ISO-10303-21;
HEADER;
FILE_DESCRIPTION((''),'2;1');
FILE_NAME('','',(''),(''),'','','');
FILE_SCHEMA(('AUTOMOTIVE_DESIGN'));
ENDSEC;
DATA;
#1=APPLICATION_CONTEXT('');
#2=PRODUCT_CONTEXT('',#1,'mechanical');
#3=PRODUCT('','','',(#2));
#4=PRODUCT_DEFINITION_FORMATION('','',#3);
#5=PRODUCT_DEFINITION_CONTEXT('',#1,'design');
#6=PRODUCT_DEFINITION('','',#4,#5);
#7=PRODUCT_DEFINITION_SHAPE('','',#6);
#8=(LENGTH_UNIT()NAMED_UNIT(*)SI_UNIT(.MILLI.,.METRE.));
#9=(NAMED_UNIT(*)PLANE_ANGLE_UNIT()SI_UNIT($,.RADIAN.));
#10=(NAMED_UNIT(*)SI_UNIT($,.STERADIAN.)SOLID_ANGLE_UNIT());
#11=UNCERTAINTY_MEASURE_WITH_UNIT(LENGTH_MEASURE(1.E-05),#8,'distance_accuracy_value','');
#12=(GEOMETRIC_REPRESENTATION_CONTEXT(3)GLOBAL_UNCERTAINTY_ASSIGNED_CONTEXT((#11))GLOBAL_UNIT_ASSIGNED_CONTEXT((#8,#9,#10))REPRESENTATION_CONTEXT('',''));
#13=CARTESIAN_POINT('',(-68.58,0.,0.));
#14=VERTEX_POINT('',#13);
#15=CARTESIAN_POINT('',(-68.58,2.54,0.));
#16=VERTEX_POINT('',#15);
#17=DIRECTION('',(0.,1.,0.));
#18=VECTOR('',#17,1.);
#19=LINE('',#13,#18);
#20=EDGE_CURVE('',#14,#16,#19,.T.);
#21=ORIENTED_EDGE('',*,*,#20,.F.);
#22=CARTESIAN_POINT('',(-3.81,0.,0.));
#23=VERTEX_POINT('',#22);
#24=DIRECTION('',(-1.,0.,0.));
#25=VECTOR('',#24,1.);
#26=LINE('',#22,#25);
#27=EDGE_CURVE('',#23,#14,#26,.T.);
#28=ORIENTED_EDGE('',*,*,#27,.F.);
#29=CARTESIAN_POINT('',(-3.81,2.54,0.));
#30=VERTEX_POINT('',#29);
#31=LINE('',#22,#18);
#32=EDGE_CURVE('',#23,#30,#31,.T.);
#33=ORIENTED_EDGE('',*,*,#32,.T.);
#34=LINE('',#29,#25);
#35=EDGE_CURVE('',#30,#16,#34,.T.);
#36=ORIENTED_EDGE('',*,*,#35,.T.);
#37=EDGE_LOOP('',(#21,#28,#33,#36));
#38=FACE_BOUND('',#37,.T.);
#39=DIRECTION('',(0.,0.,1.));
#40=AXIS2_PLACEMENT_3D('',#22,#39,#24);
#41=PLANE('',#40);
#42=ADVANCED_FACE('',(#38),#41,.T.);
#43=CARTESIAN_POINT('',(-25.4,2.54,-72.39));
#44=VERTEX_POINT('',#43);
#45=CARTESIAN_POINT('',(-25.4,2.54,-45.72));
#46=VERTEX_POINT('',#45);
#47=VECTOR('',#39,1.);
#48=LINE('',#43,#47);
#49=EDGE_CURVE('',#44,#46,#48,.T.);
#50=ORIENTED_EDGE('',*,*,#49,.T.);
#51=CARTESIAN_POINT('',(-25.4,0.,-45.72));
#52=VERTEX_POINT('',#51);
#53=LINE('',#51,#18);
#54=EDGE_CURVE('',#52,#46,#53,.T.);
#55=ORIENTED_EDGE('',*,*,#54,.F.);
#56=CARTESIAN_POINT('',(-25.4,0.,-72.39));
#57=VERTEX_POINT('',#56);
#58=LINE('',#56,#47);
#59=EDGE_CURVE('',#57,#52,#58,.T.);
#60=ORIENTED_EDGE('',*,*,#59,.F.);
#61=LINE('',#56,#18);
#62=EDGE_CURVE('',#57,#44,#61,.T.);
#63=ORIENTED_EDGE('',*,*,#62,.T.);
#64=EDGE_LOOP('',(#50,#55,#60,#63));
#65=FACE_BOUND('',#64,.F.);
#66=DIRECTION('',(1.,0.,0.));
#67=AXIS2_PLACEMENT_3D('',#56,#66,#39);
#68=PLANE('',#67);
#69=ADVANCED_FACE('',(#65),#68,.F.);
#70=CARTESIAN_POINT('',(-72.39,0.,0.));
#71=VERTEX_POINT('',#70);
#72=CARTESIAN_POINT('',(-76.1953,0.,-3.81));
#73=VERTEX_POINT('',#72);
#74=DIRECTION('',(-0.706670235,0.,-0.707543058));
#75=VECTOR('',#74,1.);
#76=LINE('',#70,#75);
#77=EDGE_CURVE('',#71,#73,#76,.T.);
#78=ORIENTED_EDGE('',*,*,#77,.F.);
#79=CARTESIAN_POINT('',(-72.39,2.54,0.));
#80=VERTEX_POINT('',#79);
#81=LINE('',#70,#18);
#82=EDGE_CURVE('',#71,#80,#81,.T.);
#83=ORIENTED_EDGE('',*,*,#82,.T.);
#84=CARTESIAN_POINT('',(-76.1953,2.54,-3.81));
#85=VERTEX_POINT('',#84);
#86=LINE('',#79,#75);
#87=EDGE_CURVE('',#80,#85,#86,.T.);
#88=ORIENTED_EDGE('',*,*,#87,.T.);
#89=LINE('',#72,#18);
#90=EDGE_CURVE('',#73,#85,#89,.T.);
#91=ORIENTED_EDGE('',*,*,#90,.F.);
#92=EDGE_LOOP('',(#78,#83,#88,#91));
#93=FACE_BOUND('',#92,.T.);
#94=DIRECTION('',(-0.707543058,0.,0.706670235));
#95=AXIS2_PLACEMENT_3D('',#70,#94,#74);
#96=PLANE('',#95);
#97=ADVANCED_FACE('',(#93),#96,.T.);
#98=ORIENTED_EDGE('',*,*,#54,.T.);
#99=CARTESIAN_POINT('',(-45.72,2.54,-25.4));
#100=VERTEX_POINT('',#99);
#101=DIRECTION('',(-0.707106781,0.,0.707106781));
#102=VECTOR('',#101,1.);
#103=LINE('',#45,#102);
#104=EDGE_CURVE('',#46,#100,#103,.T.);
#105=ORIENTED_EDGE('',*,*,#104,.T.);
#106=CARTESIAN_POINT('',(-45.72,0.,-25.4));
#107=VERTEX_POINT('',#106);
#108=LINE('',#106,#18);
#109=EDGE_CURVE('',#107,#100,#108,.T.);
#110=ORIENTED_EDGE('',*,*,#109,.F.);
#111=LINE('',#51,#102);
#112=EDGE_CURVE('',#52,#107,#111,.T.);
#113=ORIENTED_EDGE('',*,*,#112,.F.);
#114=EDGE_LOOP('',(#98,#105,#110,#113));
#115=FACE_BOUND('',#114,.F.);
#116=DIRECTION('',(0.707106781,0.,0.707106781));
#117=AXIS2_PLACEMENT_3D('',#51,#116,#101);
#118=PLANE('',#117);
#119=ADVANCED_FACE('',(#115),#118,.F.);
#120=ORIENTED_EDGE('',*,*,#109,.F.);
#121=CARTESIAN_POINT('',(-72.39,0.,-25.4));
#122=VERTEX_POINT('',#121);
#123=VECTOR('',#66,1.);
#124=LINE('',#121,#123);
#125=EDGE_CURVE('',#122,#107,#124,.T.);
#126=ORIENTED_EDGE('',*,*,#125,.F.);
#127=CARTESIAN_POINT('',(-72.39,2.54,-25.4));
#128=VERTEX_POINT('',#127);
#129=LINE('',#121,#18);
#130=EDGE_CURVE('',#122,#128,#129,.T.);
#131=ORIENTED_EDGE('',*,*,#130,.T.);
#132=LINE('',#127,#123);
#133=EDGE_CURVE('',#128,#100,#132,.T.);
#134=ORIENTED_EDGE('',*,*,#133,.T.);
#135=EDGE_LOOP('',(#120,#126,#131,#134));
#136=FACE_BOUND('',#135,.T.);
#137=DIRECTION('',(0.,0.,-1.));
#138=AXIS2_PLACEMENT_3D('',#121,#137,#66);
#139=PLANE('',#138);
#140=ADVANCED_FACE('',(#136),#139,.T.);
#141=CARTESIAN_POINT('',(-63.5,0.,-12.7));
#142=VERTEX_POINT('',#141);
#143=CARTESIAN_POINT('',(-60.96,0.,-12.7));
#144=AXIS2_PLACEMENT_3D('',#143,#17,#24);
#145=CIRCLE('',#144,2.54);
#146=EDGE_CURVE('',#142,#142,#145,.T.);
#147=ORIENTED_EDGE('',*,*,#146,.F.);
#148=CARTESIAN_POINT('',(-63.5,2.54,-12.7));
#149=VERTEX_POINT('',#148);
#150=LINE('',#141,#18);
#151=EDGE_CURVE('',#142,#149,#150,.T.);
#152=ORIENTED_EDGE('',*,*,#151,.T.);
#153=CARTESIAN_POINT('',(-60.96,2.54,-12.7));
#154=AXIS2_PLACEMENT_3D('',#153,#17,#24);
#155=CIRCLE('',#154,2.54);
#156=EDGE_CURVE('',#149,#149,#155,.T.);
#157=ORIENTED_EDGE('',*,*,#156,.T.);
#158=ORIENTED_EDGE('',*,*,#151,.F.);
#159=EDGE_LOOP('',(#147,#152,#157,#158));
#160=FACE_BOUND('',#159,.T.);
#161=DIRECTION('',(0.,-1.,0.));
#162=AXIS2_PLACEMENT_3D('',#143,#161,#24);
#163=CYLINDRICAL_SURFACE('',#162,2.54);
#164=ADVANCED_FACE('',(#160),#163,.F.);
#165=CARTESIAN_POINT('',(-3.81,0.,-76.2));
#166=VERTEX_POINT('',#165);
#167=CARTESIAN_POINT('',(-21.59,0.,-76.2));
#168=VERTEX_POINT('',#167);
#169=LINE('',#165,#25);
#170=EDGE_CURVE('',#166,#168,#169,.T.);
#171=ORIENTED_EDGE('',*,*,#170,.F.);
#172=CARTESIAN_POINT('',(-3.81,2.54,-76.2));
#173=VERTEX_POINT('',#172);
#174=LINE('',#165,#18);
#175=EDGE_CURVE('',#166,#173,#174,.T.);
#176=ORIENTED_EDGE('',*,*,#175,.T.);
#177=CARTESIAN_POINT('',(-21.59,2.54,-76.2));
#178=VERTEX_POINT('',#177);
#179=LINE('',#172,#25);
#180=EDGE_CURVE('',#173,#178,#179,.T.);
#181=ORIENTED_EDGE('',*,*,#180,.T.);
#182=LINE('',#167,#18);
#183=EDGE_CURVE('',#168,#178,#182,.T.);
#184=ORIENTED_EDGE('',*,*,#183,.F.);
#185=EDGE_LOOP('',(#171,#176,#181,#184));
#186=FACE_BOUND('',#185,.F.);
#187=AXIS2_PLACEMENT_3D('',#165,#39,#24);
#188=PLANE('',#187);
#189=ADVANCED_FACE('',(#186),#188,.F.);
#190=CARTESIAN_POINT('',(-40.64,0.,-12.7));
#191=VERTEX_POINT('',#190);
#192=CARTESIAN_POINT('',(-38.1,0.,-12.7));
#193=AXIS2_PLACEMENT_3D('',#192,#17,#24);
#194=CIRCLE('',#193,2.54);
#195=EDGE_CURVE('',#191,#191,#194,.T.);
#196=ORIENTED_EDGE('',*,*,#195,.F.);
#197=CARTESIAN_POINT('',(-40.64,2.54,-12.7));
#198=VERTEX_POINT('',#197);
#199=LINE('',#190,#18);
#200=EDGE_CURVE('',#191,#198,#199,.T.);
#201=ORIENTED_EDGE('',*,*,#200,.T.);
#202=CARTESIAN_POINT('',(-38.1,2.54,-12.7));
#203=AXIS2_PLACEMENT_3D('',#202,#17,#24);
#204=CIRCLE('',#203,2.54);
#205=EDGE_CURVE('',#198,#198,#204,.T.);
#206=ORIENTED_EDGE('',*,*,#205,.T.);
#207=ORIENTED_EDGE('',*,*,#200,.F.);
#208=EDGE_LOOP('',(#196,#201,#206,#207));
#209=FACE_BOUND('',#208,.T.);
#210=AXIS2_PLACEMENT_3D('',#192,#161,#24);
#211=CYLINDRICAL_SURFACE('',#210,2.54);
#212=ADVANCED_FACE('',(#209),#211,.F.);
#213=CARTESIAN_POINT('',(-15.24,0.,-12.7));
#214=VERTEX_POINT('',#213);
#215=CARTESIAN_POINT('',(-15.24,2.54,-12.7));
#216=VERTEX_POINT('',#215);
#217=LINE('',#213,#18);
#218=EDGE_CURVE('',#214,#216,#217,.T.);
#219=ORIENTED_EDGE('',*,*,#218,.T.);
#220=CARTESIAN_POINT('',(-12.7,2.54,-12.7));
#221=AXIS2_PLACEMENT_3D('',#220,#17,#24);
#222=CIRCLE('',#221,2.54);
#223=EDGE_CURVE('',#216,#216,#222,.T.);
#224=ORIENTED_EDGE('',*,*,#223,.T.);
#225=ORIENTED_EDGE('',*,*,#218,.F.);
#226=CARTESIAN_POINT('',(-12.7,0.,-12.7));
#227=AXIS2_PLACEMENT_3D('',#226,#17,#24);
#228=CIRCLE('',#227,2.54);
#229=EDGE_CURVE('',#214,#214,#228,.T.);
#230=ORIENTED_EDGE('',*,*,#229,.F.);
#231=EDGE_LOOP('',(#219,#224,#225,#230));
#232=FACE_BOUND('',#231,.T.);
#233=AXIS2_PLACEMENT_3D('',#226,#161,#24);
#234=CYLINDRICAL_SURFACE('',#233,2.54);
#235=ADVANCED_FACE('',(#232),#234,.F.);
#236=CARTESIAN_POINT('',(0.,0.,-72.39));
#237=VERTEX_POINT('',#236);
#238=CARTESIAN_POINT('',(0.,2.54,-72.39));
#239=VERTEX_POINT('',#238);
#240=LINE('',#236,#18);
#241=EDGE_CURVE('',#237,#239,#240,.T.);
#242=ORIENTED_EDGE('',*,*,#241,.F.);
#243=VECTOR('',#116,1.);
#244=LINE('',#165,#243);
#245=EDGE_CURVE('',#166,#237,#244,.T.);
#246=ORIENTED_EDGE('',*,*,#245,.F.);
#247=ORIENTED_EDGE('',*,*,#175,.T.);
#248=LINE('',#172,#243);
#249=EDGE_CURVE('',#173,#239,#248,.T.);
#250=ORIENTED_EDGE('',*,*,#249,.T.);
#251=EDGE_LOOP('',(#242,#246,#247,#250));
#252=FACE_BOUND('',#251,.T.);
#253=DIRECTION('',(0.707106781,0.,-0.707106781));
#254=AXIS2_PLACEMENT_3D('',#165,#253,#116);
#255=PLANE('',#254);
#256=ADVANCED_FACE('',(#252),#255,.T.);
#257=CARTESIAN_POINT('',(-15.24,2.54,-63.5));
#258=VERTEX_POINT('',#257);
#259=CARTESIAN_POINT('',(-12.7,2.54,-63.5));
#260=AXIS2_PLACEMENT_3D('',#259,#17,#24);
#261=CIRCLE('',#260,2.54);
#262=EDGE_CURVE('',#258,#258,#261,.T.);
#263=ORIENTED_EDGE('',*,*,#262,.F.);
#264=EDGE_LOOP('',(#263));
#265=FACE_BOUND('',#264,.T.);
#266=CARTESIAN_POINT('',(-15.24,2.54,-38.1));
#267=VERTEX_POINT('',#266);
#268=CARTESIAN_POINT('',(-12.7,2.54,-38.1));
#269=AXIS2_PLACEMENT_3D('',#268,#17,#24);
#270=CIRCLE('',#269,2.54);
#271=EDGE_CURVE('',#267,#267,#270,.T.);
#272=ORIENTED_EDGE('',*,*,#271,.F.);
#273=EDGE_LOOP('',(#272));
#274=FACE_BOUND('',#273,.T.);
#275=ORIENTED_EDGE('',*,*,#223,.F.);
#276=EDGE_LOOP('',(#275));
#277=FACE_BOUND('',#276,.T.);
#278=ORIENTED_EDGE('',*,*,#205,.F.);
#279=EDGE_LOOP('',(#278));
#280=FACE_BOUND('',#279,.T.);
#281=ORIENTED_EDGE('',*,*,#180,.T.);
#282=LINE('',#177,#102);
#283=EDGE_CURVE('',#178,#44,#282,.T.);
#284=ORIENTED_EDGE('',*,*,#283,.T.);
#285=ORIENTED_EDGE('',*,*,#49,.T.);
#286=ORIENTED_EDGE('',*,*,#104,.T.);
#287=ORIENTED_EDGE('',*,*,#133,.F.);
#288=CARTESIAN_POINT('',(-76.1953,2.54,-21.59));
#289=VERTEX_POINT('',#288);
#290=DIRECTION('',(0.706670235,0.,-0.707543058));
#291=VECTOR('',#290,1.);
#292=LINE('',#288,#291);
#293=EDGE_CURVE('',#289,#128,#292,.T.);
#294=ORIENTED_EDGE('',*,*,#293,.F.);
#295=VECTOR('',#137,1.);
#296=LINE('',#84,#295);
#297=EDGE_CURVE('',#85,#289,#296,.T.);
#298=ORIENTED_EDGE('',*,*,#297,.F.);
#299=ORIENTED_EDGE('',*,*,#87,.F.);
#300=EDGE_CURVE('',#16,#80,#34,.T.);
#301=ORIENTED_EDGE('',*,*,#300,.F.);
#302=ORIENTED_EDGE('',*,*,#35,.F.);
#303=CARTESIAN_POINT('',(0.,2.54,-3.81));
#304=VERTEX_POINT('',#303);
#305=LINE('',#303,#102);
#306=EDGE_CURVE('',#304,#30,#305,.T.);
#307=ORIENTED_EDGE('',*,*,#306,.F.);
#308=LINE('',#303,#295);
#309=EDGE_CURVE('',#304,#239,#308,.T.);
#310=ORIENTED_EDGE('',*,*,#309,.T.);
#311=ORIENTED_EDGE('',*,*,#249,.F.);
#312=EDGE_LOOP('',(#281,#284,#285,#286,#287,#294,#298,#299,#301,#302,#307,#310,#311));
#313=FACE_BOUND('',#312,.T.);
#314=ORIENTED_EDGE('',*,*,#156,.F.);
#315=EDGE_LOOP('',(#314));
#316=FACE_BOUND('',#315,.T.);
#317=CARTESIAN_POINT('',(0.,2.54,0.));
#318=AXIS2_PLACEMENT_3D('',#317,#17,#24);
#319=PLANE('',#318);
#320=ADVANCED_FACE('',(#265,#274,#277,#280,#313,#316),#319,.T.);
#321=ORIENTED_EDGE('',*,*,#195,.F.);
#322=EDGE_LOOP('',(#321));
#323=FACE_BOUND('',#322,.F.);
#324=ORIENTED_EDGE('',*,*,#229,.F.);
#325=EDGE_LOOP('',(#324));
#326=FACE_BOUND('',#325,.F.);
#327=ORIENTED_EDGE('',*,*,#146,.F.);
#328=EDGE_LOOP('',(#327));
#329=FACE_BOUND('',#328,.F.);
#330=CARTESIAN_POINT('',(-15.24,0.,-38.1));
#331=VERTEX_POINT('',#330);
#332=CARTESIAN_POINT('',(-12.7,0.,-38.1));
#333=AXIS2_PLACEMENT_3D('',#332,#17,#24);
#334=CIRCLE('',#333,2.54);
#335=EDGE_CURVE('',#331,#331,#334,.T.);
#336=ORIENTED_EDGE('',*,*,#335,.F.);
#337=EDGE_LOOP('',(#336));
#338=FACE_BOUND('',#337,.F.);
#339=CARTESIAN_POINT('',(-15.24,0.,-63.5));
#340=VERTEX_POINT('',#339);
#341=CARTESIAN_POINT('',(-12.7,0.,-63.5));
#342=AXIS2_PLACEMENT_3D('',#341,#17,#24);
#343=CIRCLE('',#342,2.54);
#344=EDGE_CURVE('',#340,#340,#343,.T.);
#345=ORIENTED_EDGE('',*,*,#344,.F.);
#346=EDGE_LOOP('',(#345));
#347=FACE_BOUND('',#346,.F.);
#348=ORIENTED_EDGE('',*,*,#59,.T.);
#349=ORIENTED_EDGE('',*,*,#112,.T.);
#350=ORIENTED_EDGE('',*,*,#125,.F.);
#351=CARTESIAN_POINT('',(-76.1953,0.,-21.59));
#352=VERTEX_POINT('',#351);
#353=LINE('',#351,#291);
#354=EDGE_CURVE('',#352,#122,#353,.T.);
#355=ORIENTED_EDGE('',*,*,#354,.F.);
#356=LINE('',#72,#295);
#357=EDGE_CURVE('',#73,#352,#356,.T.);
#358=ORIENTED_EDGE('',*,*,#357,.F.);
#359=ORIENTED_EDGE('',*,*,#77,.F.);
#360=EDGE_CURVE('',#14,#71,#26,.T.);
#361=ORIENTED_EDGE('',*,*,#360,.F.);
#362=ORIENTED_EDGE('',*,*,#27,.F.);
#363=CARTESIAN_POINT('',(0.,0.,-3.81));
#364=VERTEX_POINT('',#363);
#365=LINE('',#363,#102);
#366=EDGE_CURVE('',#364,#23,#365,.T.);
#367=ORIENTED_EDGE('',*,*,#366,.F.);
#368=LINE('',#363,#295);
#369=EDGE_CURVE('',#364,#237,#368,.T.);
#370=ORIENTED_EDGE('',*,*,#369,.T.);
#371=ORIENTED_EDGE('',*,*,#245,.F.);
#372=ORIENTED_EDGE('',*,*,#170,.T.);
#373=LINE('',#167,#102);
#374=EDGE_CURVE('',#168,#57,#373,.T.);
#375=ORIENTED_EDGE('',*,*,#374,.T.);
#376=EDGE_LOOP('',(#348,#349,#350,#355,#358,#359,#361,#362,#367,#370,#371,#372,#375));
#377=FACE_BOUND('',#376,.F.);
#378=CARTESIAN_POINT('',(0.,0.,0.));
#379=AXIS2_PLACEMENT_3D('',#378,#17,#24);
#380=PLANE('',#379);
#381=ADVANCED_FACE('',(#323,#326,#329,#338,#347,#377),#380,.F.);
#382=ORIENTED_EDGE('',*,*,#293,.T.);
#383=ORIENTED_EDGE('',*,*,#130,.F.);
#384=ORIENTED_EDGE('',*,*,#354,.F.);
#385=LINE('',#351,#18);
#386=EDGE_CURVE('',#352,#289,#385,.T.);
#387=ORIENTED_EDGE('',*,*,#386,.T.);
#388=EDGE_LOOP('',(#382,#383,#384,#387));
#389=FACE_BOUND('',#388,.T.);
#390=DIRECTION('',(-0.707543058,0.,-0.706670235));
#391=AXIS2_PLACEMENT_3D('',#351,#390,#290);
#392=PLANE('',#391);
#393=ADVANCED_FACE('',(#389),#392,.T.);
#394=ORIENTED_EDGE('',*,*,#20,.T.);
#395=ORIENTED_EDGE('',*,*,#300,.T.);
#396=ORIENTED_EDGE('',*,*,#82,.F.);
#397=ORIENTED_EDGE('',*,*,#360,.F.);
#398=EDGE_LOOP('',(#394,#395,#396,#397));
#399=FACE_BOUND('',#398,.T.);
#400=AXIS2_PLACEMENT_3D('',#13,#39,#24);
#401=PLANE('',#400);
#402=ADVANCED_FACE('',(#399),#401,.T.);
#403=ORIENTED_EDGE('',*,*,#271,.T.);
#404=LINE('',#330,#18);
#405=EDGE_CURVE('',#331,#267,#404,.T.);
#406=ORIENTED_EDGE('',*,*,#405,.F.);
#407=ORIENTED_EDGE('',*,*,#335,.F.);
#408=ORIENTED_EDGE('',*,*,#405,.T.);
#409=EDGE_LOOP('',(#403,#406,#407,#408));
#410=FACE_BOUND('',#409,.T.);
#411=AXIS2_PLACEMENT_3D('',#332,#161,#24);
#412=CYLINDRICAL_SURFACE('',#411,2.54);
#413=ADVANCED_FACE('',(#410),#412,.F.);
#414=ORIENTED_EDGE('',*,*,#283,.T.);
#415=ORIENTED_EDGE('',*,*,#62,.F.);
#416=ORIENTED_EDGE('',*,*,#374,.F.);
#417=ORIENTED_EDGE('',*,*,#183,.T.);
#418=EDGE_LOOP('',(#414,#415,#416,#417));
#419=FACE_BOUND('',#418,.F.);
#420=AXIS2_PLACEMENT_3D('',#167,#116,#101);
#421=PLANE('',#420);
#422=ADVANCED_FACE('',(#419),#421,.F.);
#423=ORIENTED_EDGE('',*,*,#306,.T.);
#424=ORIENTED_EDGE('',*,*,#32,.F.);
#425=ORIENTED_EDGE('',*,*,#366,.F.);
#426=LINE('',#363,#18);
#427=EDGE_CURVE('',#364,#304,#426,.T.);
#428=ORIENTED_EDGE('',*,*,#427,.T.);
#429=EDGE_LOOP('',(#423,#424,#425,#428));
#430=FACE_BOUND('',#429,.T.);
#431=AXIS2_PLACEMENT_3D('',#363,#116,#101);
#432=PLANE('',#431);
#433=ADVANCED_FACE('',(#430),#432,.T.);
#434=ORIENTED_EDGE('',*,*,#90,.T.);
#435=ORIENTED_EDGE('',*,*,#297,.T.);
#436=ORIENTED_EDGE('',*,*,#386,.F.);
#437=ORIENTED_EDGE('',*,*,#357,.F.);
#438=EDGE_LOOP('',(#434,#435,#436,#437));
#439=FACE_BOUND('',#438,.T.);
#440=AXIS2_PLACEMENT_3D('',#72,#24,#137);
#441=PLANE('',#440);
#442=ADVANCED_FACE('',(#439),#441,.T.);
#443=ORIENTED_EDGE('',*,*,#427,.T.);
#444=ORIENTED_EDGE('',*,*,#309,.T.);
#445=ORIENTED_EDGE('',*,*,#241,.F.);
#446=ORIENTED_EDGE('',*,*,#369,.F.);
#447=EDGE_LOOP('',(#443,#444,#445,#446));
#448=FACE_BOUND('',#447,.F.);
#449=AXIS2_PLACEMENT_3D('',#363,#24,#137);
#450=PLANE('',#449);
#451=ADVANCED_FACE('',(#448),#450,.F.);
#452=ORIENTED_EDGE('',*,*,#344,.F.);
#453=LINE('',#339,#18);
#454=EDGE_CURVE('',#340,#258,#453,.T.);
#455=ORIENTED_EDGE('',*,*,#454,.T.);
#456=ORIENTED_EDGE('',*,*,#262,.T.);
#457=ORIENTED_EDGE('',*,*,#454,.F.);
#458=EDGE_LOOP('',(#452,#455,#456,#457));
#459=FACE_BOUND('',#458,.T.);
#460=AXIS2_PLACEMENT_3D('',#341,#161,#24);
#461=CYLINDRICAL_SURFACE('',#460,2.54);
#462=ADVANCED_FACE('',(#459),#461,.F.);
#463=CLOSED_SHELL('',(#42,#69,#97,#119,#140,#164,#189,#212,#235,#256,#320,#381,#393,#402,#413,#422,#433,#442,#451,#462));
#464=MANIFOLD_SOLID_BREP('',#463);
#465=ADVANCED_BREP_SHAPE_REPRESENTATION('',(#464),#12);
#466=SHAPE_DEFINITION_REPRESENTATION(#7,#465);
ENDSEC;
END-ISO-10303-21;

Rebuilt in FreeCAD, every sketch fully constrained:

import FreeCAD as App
import Part
import Sketcher

V = App.Vector
Q = App.Units.Quantity


def add_polygon(sketch, points):
    """Adds a closed chain of lines whose ends are joined by coincident constraints."""
    first, n = sketch.GeometryCount, len(points)
    for a, b in zip(points, points[1:] + points[:1]):
        sketch.addGeometry(Part.LineSegment(App.Vector(*a, 0), App.Vector(*b, 0)), False)
    for i in range(n):
        sketch.addConstraint(Sketcher.Constraint("Coincident", first + i, 2, first + (i + 1) % n, 1))

doc = App.newDocument("Part")
params = doc.addObject("Spreadsheet::Sheet", "Params")
for row, (alias, value) in enumerate([
    ("sketch1_width", "2.7 in"),
    ("sketch1_width2", "0.7 in"),
    ("sketch1_diameter", "0.2 in"),
    ("sketch1_length", "0.212 in"),
    ("sketch1_width3", "1.05 in"),
    ("pad1_length", "0.1 in"),
], start=1):
    params.set(f"A{row}", alias)
    params.set(f"B{row}", "=" + value)
    params.setAlias(f"B{row}", alias)

body = doc.addObject("PartDesign::Body", "Body")

# Sketch on XZ plane
sketch1 = body.newObject("Sketcher::SketchObject", "Sketch")
sketch1.AttachmentSupport = (doc.getObject("XZ_Plane"), [""])
sketch1.MapMode = "FlatFace"
add_polygon(sketch1, [(-25.4, -72.4), (-25.4, -45.7), (-45.7, -25.4), (-72.4, -25.4), (-76.2, -21.6), (-76.2, -3.8), (-72.4, 0), (-3.8, 0), (0, -3.8), (0, -72.4), (-3.8, -76.2), (-21.6, -76.2)])  # lines 0-11
sketch1.addGeometry(Part.Circle(V(-12.7, -63.5, 0), V(0, 0, 1), 2.5), False)  # 12
sketch1.addGeometry(Part.Circle(V(-12.7, -38.1, 0), V(0, 0, 1), 2.5), False)  # 13
sketch1.addGeometry(Part.Circle(V(-12.7, -12.7, 0), V(0, 0, 1), 2.5), False)  # 14
sketch1.addGeometry(Part.Circle(V(-38.1, -12.7, 0), V(0, 0, 1), 2.5), False)  # 15
sketch1.addGeometry(Part.Circle(V(-61, -12.7, 0), V(0, 0, 1), 2.5), False)  # 16
sketch1.addConstraint([
    Sketcher.Constraint("Vertical", 0),
    Sketcher.Constraint("Horizontal", 2),
    Sketcher.Constraint("Vertical", 4),
    Sketcher.Constraint("Horizontal", 6),
    Sketcher.Constraint("Vertical", 8),
    Sketcher.Constraint("Horizontal", 10),
    Sketcher.Constraint("Equal", 12, 13),
    Sketcher.Constraint("Equal", 13, 14),
    Sketcher.Constraint("Equal", 14, 15),
    Sketcher.Constraint("Equal", 15, 16),
    Sketcher.Constraint("PointOnObject", 5, 2, -1),
    Sketcher.Constraint("PointOnObject", 7, 2, -2),
    Sketcher.Constraint("Parallel", 1, 7),
    Sketcher.Constraint("Perpendicular", 7, 9),
    Sketcher.Constraint("Perpendicular", 9, 11),
    Sketcher.Constraint("Horizontal", 14, 3, 15, 3),
    Sketcher.Constraint("Horizontal", 15, 3, 16, 3),
    Sketcher.Constraint("Horizontal", 4, 2, 7, 2),
    Sketcher.Constraint("Horizontal", 8, 2, 11, 2),
    Sketcher.Constraint("Vertical", 12, 3, 13, 3),
    Sketcher.Constraint("Vertical", 13, 3, 14, 3),
    Sketcher.Constraint("Vertical", 2, 2, 5, 2),
    Sketcher.Constraint("Vertical", 6, 2, 9, 2),
    Sketcher.Constraint("Equal", 2, 0),
    Sketcher.Constraint("Equal", 10, 4),
    Sketcher.Constraint("Equal", 6, 8),
    Sketcher.Constraint("Equal", 3, 5),
    Sketcher.Constraint("DistanceX", 6, 1, 6, 2, Q("2.7 in")),
    Sketcher.Constraint("DistanceX", 10, 2, 10, 1, Q("0.7 in")),
    Sketcher.Constraint("Diameter", 12, Q("0.2 in")),
    Sketcher.Constraint("DistanceY", 12, 3, 0, 2, Q("0.7 in")),
    Sketcher.Constraint("Distance", 3, Q("0.212 in")),
    Sketcher.Constraint("DistanceX", 0, 2, -1, 1, Q("1 in")),
    Sketcher.Constraint("DistanceY", 12, 3, 13, 3, Q("1 in")),
    Sketcher.Constraint("DistanceY", 13, 3, 14, 3, Q("1 in")),
    Sketcher.Constraint("DistanceX", 15, 3, 14, 3, Q("1 in")),
    Sketcher.Constraint("DistanceX", 2, 2, 2, 1, Q("1.05 in")),
    Sketcher.Constraint("DistanceX", 12, 3, -1, 1, Q("0.5 in")),
    Sketcher.Constraint("DistanceX", 16, 3, -1, 1, Q("2.4 in")),
])
sketch1.setExpression("Constraints[39]", "Params.sketch1_width")
sketch1.setExpression("Constraints[40]", "Params.sketch1_width2")
sketch1.setExpression("Constraints[41]", "Params.sketch1_diameter")
sketch1.setExpression("Constraints[43]", "Params.sketch1_length")
sketch1.setExpression("Constraints[48]", "Params.sketch1_width3")
pad1 = body.newObject("PartDesign::Pad", "Pad")
pad1.Profile = sketch1
pad1.setExpression("Length", "Params.pad1_length")
pad1.Reversed = True

doc.recompute()
